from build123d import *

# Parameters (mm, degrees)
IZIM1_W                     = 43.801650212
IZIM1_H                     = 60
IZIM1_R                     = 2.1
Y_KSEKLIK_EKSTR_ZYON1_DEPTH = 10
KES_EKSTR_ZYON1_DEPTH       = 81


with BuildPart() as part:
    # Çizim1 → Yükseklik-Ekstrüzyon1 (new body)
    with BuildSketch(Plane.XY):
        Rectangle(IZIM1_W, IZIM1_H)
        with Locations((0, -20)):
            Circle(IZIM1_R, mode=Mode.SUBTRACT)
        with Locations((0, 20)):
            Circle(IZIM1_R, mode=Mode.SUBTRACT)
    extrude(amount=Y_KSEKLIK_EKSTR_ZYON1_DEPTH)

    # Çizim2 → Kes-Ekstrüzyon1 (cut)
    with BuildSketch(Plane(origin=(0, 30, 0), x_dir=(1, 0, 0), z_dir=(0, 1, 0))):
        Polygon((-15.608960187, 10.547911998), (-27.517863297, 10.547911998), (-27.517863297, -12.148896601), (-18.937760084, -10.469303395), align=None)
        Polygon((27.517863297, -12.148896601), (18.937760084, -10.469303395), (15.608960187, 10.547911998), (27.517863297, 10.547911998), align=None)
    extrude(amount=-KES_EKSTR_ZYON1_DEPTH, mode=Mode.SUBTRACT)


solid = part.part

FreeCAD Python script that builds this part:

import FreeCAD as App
import Part
import Sketcher

V = App.Vector
Q = App.Units.Quantity

doc = App.newDocument("Part")
body = doc.addObject("PartDesign::Body", "Body")

# Sketch on XY plane
sketch1 = body.newObject("Sketcher::SketchObject", "Sketch")
sketch1.AttachmentSupport = (doc.getObject("XY_Plane"), [""])
sketch1.MapMode = "FlatFace"
sketch1.addGeometry(Part.LineSegment(V(-21.9, 30, 0), V(-21.9, -30, 0)), False)
sketch1.addGeometry(Part.LineSegment(V(-21.9, -30, 0), V(21.9, -30, 0)), False)
sketch1.addGeometry(Part.LineSegment(V(21.9, -30, 0), V(21.9, 30, 0)), False)
sketch1.addGeometry(Part.LineSegment(V(21.9, 30, 0), V(-21.9, 30, 0)), False)
sketch1.addGeometry(Part.Circle(V(0, -20, 0), V(0, 0, 1), 2.1), False)
sketch1.addGeometry(Part.Circle(V(0, 20, 0), V(0, 0, 1), 2.1), False)
sketch1.addConstraint(Sketcher.Constraint("Coincident", 0, 2, 1, 1))
sketch1.addConstraint(Sketcher.Constraint("Coincident", 1, 2, 2, 1))
sketch1.addConstraint(Sketcher.Constraint("Coincident", 2, 2, 3, 1))
sketch1.addConstraint(Sketcher.Constraint("Coincident", 3, 2, 0, 1))
sketch1.addConstraint(Sketcher.Constraint("Vertical", 0))
sketch1.addConstraint(Sketcher.Constraint("Horizontal", 1))
sketch1.addConstraint(Sketcher.Constraint("Vertical", 2))
sketch1.addConstraint(Sketcher.Constraint("Horizontal", 3))
sketch1.addConstraint(Sketcher.Constraint("Equal", 4, 5))
sketch1.addConstraint(Sketcher.Constraint("Symmetric", 4, 3, 5, 3, -1, 1))
sketch1.addConstraint(Sketcher.Constraint("Symmetric", 0, 2, 2, 2, -1, 1))
sketch1.addConstraint(Sketcher.Constraint("PointOnObject", 4, 3, -2))
sketch1.addConstraint(Sketcher.Constraint("Diameter", 4, Q("4.2 mm")))
sketch1.addConstraint(Sketcher.Constraint("DistanceY", 0, 2, 0, 1, Q("60 mm")))
sketch1.addConstraint(Sketcher.Constraint("DistanceY", 4, 3, -1, 1, Q("20 mm")))
sketch1.addConstraint(Sketcher.Constraint("DistanceX", 1, 1, 1, 2, Q("43.80165 mm")))
pad1 = body.newObject("PartDesign::Pad", "Pad")
pad1.Profile = sketch1
pad1.Length = 10

# Sketch on XZ plane
sketch2 = body.newObject("Sketcher::SketchObject", "Sketch001")
sketch2.AttachmentSupport = (doc.getObject("XZ_Plane"), [""])
sketch2.MapMode = "FlatFace"
sketch2.AttachmentOffset = App.Placement(V(0, 0, -30), App.Rotation())
sketch2.addGeometry(Part.LineSegment(V(-16, -11, 0), V(-28, -11, 0)), False)
sketch2.addGeometry(Part.LineSegment(V(-28, -11, 0), V(-28, 12, 0)), False)
sketch2.addGeometry(Part.LineSegment(V(-28, 12, 0), V(-19, 10, 0)), False)
sketch2.addGeometry(Part.LineSegment(V(-19, 10, 0), V(-16, -11, 0)), False)
sketch2.addGeometry(Part.LineSegment(V(19, 10, 0), V(28, 12, 0)), False)
sketch2.addGeometry(Part.LineSegment(V(28, 12, 0), V(28, -11, 0)), False)
sketch2.addGeometry(Part.LineSegment(V(28, -11, 0), V(16, -11, 0)), False)
sketch2.addGeometry(Part.LineSegment(V(16, -11, 0), V(19, 10, 0)), False)
sketch2.addConstraint(Sketcher.Constraint("Coincident", 0, 2, 1, 1))
sketch2.addConstraint(Sketcher.Constraint("Coincident", 1, 2, 2, 1))
sketch2.addConstraint(Sketcher.Constraint("Coincident", 2, 2, 3, 1))
sketch2.addConstraint(Sketcher.Constraint("Coincident", 3, 2, 0, 1))
sketch2.addConstraint(Sketcher.Constraint("Coincident", 4, 2, 5, 1))
sketch2.addConstraint(Sketcher.Constraint("Coincident", 5, 2, 6, 1))
sketch2.addConstraint(Sketcher.Constraint("Coincident", 6, 2, 7, 1))
sketch2.addConstraint(Sketcher.Constraint("Coincident", 7, 2, 4, 1))
sketch2.addConstraint(Sketcher.Constraint("Horizontal", 0))
sketch2.addConstraint(Sketcher.Constraint("Vertical", 1))
sketch2.addConstraint(Sketcher.Constraint("Vertical", 5))
sketch2.addConstraint(Sketcher.Constraint("Horizontal", 6))
sketch2.addConstraint(Sketcher.Constraint("Symmetric", 1, 2, 4, 2, -2))
sketch2.addConstraint(Sketcher.Constraint("Symmetric", 3, 2, 6, 2, -2))
sketch2.addConstraint(Sketcher.Constraint("Symmetric", 2, 2, 7, 2, -2))
sketch2.addConstraint(Sketcher.Constraint("Angle", 3, Q("-81 deg")))
sketch2.addConstraint(Sketcher.Constraint("DistanceY", 1, 1, 1, 2, Q("22.696809 mm")))
sketch2.addConstraint(Sketcher.Constraint("DistanceX", 2, 2, 3, 2, Q("3.3288 mm")))
sketch2.addConstraint(Sketcher.Constraint("Distance", 2, Q("8.742952 mm")))
sketch2.addConstraint(Sketcher.Constraint("DistanceY", 0, 2, -1, 1, Q("10.547912 mm")))
sketch2.addConstraint(Sketcher.Constraint("DistanceX", 2, 2, -1, 1, Q("18.93776 mm")))
pocket1 = body.newObject("PartDesign::Pocket", "Pocket")
pocket1.Profile = sketch2
pocket1.Length = 81
pocket1.Reversed = True

doc.recompute()
